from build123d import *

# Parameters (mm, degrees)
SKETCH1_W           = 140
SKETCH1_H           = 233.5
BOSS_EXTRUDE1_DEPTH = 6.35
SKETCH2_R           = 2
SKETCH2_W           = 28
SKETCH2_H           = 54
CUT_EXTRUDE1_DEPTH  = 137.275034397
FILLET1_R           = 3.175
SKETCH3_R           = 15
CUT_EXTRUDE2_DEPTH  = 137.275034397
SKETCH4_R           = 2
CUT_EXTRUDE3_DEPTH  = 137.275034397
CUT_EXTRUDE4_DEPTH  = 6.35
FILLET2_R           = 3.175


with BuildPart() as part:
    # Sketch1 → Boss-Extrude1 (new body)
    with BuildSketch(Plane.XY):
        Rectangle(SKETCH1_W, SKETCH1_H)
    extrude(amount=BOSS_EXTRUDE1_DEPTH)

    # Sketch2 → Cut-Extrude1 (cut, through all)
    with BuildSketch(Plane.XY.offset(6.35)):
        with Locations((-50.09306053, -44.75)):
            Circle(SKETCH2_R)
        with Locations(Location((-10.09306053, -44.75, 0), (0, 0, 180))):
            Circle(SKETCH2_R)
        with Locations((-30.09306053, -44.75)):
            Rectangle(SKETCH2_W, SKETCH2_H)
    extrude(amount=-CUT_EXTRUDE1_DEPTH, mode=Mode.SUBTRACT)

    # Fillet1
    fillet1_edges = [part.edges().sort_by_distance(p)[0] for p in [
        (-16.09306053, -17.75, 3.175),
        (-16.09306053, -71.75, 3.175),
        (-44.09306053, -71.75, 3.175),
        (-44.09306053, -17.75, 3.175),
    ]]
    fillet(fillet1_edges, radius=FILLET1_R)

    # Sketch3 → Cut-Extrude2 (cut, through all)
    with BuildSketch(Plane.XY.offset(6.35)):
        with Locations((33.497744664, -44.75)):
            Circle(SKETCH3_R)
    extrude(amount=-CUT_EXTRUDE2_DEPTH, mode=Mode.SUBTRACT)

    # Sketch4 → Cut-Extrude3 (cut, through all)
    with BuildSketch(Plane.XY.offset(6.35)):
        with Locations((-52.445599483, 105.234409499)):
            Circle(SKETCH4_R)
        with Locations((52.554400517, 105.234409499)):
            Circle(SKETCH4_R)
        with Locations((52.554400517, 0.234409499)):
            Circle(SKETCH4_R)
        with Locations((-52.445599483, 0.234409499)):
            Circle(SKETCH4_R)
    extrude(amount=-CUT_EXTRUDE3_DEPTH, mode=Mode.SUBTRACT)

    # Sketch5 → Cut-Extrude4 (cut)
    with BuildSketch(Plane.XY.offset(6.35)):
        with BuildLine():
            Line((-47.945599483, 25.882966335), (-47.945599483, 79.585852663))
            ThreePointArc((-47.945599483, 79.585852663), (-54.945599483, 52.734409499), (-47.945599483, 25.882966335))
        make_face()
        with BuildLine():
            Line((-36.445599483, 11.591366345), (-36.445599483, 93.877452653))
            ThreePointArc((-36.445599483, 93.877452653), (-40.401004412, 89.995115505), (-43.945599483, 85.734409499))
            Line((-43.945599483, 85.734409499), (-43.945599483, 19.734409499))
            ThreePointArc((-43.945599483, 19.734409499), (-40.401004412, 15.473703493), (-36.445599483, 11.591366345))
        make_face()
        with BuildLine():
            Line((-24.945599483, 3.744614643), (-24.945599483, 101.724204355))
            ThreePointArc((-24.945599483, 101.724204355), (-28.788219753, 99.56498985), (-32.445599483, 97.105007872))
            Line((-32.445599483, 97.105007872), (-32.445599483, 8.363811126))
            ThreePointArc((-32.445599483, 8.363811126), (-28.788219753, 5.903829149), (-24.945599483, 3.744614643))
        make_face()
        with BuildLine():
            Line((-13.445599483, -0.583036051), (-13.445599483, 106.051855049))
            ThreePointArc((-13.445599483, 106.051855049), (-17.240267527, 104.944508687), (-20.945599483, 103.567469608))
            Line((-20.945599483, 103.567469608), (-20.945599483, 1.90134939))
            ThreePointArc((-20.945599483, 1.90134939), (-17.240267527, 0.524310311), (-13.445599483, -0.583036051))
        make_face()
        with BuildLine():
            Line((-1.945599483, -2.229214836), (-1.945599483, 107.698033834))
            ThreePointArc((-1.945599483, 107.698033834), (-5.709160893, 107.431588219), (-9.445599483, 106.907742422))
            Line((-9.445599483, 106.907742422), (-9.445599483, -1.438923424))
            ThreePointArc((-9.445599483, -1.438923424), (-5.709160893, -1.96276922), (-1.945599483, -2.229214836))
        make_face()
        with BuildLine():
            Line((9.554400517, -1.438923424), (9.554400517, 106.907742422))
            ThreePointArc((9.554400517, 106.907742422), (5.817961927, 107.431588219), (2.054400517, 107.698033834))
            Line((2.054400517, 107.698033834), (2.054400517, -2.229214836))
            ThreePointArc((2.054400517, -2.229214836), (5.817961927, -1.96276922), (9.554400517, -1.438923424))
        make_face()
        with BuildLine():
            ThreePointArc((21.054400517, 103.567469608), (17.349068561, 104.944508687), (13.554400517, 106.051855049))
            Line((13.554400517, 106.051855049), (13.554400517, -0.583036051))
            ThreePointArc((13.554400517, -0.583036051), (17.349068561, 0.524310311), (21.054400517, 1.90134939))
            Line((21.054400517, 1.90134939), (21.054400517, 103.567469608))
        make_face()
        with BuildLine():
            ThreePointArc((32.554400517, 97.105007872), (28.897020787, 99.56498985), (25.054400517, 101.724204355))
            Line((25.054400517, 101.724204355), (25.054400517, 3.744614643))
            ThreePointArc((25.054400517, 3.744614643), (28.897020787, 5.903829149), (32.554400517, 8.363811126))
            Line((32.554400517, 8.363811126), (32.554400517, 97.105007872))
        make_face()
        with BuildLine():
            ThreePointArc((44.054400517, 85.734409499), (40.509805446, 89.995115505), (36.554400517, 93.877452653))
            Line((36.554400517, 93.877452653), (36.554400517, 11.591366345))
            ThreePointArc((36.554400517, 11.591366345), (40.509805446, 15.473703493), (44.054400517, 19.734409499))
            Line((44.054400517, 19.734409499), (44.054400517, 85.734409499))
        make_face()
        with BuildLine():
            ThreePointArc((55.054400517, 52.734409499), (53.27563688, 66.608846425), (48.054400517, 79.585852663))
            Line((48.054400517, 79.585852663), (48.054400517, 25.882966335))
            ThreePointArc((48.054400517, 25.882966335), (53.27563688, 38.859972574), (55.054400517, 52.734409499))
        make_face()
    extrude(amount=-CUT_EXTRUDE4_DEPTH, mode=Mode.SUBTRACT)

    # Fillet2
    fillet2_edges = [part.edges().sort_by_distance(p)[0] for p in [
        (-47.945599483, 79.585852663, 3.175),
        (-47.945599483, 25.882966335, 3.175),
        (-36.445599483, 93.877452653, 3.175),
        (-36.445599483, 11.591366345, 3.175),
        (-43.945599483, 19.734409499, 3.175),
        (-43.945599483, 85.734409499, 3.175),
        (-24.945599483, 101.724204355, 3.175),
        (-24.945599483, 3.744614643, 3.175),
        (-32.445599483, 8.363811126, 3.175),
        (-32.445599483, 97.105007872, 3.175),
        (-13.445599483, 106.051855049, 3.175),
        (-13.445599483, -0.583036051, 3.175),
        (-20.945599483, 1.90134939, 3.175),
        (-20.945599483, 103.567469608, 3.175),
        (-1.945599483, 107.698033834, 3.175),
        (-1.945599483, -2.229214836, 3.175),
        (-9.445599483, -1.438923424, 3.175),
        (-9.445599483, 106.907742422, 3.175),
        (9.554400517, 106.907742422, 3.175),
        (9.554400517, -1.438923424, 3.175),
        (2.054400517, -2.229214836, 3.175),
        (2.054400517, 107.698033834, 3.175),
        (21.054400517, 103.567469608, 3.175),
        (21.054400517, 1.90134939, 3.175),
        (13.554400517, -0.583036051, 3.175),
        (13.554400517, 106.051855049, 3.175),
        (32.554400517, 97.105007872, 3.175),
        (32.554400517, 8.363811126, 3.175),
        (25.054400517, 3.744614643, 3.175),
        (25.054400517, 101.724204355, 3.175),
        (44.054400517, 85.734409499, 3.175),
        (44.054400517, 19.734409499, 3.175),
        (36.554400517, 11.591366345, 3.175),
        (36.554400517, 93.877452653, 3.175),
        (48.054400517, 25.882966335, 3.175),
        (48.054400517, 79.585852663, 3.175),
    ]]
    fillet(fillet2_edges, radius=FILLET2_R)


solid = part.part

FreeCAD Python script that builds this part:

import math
import FreeCAD as App
import Part
import Sketcher


def edges_at(feature, points):
    """Names of the edges that pass closest to the given points."""
    edges = feature.Shape.Edges
    near = lambda p: min(range(len(edges)), key=lambda i: edges[i].distToShape(Part.Vertex(*p))[0])
    return sorted({f"Edge{near(p) + 1}" for p in points})


def add_polygon(sketch, points):
    """Adds a closed chain of lines whose ends are joined by coincident constraints."""
    first, n = sketch.GeometryCount, len(points)
    for a, b in zip(points, points[1:] + points[:1]):
        sketch.addGeometry(Part.LineSegment(App.Vector(*a, 0), App.Vector(*b, 0)), False)
    for i in range(n):
        sketch.addConstraint(Sketcher.Constraint("Coincident", first + i, 2, first + (i + 1) % n, 1))

doc = App.newDocument("Part")
body = doc.addObject("PartDesign::Body", "Body")

# Sketch on XY plane
sketch1 = body.newObject("Sketcher::SketchObject", "Sketch")
sketch1.AttachmentSupport = (doc.getObject("XY_Plane"), [""])
sketch1.MapMode = "FlatFace"
add_polygon(sketch1, [(-70, 117), (-70, -117), (70, -117), (70, 117)])  # lines 0-3
sketch1.addConstraint([
    Sketcher.Constraint("Vertical", 0),
    Sketcher.Constraint("Horizontal", 1),
    Sketcher.Constraint("Vertical", 2),
    Sketcher.Constraint("Horizontal", 3),
    Sketcher.Constraint("Symmetric", 0, 2, 2, 2, -1, 1),
    Sketcher.Constraint("DistanceX", 1, 1, 1, 2, 140.0),
    Sketcher.Constraint("DistanceY", 0, 2, 0, 1, 233.5),
])
pad1 = body.newObject("PartDesign::Pad", "Pad")
pad1.Profile = sketch1
pad1.Length = 6.35

# Sketch on XY plane
sketch2 = body.newObject("Sketcher::SketchObject", "Sketch001")
sketch2.AttachmentSupport = (doc.getObject("XY_Plane"), [""])
sketch2.MapMode = "FlatFace"
sketch2.AttachmentOffset = App.Placement(App.Vector(0, 0, 6.35), App.Rotation())
sketch2.addGeometry(Part.Circle(App.Vector(-50.1, -44.8, 0), App.Vector(0, 0, 1), 2), False)  # 0
sketch2.addGeometry(Part.Circle(App.Vector(-10.1, -44.8, 0), App.Vector(0, 0, 1), 2), False)  # 1
add_polygon(sketch2, [(-44.1, -17.8), (-44.1, -71.8), (-16.1, -71.8), (-16.1, -17.8)])  # lines 2-5
sketch2.addConstraint([
    Sketcher.Constraint("Vertical", 2),
    Sketcher.Constraint("Horizontal", 3),
    Sketcher.Constraint("Vertical", 4),
    Sketcher.Constraint("Horizontal", 5),
    Sketcher.Constraint("Equal", 0, 1),
    Sketcher.Constraint("Horizontal", 0, 3, 1, 3),
    Sketcher.Constraint("Diameter", 0, 4.0),
    Sketcher.Constraint("DistanceX", 3, 1, 3, 2, 28.0),
    Sketcher.Constraint("DistanceY", 2, 2, 2, 1, 54.0),
    Sketcher.Constraint("DistanceX", 0, 3, 1, 3, 40.0),
    Sketcher.Constraint("DistanceX", 0, 3, 2, 2, 6.0),
    Sketcher.Constraint("DistanceY", 2, 2, 0, 3, 27.0),
    Sketcher.Constraint("DistanceY", 0, 3, -1, 1, 44.75),
    Sketcher.Constraint("DistanceX", 0, 3, -1, 1, 50.093061),
])
pocket1 = body.newObject("PartDesign::Pocket", "Pocket")
pocket1.Profile = sketch2
pocket1.Type = "ThroughAll"
doc.recompute()

fillet = body.newObject("PartDesign::Fillet", "Fillet")
fillet.Base = (pocket1, edges_at(pocket1, [
    (-16.093, -17.75, 3.175),
    (-16.093, -71.75, 3.175),
    (-44.093, -71.75, 3.175),
    (-44.093, -17.75, 3.175),
]))
fillet.Radius = 3.175

# Sketch on XY plane
sketch3 = body.newObject("Sketcher::SketchObject", "Sketch002")
sketch3.AttachmentSupport = (doc.getObject("XY_Plane"), [""])
sketch3.MapMode = "FlatFace"
sketch3.AttachmentOffset = App.Placement(App.Vector(0, 0, 6.35), App.Rotation())
sketch3.addGeometry(Part.Circle(App.Vector(33, -45, 0), App.Vector(0, 0, 1), 15), False)
sketch3.addConstraint([
    Sketcher.Constraint("Diameter", 0, 30.0),
    Sketcher.Constraint("DistanceY", 0, 3, -1, 1, 44.75),
    Sketcher.Constraint("DistanceX", -1, 1, 0, 3, 33.497745),
])
pocket2 = body.newObject("PartDesign::Pocket", "Pocket001")
pocket2.Profile = sketch3
pocket2.Type = "ThroughAll"

# Sketch on XY plane
sketch4 = body.newObject("Sketcher::SketchObject", "Sketch003")
sketch4.AttachmentSupport = (doc.getObject("XY_Plane"), [""])
sketch4.MapMode = "FlatFace"
sketch4.AttachmentOffset = App.Placement(App.Vector(0, 0, 6.35), App.Rotation())
sketch4.addGeometry([
    Part.Circle(App.Vector(-52.4, 105.2, 0), App.Vector(0, 0, 1), 2),
    Part.Circle(App.Vector(52.6, 105.2, 0), App.Vector(0, 0, 1), 2),
    Part.Circle(App.Vector(52.6, 0.2, 0), App.Vector(0, 0, 1), 2),
    Part.Circle(App.Vector(-52.4, 0.2, 0), App.Vector(0, 0, 1), 2),
], False)
sketch4.addConstraint([
    Sketcher.Constraint("Equal", 0, 1),
    Sketcher.Constraint("Equal", 1, 2),
    Sketcher.Constraint("Equal", 2, 3),
    Sketcher.Constraint("Horizontal", 0, 3, 1, 3),
    Sketcher.Constraint("Horizontal", 2, 3, 3, 3),
    Sketcher.Constraint("Vertical", 1, 3, 2, 3),
    Sketcher.Constraint("Vertical", 0, 3, 3, 3),
    Sketcher.Constraint("Diameter", 0, 4.0),
    Sketcher.Constraint("DistanceX", 0, 3, 1, 3, 105.0),
    Sketcher.Constraint("DistanceY", 2, 3, 1, 3, 105.0),
    Sketcher.Constraint("DistanceX", 0, 3, -1, 1, 52.445599),
    Sketcher.Constraint("DistanceY", -1, 1, 0, 3, 105.234409),
])
pocket3 = body.newObject("PartDesign::Pocket", "Pocket002")
pocket3.Profile = sketch4
pocket3.Type = "ThroughAll"

# Sketch on XY plane
sketch5 = body.newObject("Sketcher::SketchObject", "Sketch004")
sketch5.AttachmentSupport = (doc.getObject("XY_Plane"), [""])
sketch5.MapMode = "FlatFace"
sketch5.AttachmentOffset = App.Placement(App.Vector(0, 0, 6.35), App.Rotation())
sketch5.addGeometry([
    Part.LineSegment(App.Vector(-48, 26, 0), App.Vector(-48, 80, 0)),  # 0
    Part.ArcOfCircle(Part.Circle(App.Vector(0, 53, 0), App.Vector(0, 0, 1), 55), math.radians(151), math.radians(209)),  # 1
    Part.LineSegment(App.Vector(-36, 12, 0), App.Vector(-36, 94, 0)),  # 2
    Part.ArcOfCircle(Part.Circle(App.Vector(0, 53, 0), App.Vector(0, 0, 1), 55), math.radians(131.58), math.radians(143.13)),  # 3
    Part.LineSegment(App.Vector(-44, 86, 0), App.Vector(-44, 20, 0)),  # 4
    Part.ArcOfCircle(Part.Circle(App.Vector(0, 53, 0), App.Vector(0, 0, 1), 55), math.radians(-143.13), math.radians(-131.58)),  # 5
    Part.LineSegment(App.Vector(-25, 4, 0), App.Vector(-25, 102, 0)),  # 6
    Part.ArcOfCircle(Part.Circle(App.Vector(0, 53, 0), App.Vector(0, 0, 1), 55), math.radians(117.04), math.radians(126.22)),  # 7
    Part.LineSegment(App.Vector(-32, 97, 0), App.Vector(-32, 8, 0)),  # 8
    Part.ArcOfCircle(Part.Circle(App.Vector(0, 53, 0), App.Vector(0, 0, 1), 55), math.radians(-126.22), math.radians(-117.04)),  # 9
    Part.LineSegment(App.Vector(-13, -1, 0), App.Vector(-13, 106, 0)),  # 10
    Part.ArcOfCircle(Part.Circle(App.Vector(0, 53, 0), App.Vector(0, 0, 1), 55), math.radians(104.21), math.radians(112.45)),  # 11
    Part.LineSegment(App.Vector(-21, 104, 0), App.Vector(-21, 2, 0)),  # 12
    Part.ArcOfCircle(Part.Circle(App.Vector(0, 53, 0), App.Vector(0, 0, 1), 55), math.radians(-112.45), math.radians(-104.21)),  # 13
    Part.LineSegment(App.Vector(-2, -2, 0), App.Vector(-2, 108, 0)),  # 14
    Part.ArcOfCircle(Part.Circle(App.Vector(0, 53, 0), App.Vector(0, 0, 1), 55), math.radians(92.08), math.radians(99.95)),  # 15
    Part.LineSegment(App.Vector(-9, 107, 0), App.Vector(-9, -1, 0)),  # 16
    Part.ArcOfCircle(Part.Circle(App.Vector(0, 53, 0), App.Vector(0, 0, 1), 55), math.radians(-99.95), math.radians(-92.08)),  # 17
    Part.LineSegment(App.Vector(10, -1, 0), App.Vector(10, 107, 0)),  # 18
    Part.ArcOfCircle(Part.Circle(App.Vector(0, 53, 0), App.Vector(0, 0, 1), 55), math.radians(80.05), math.radians(87.92)),  # 19
    Part.LineSegment(App.Vector(2, 108, 0), App.Vector(2, -2, 0)),  # 20
    Part.ArcOfCircle(Part.Circle(App.Vector(0, 53, 0), App.Vector(0, 0, 1), 55), math.radians(-87.92), math.radians(-80.05)),  # 21
    Part.ArcOfCircle(Part.Circle(App.Vector(0, 53, 0), App.Vector(0, 0, 1), 55), math.radians(67.55), math.radians(75.79)),  # 22
    Part.LineSegment(App.Vector(14, 106, 0), App.Vector(14, -1, 0)),  # 23
    Part.ArcOfCircle(Part.Circle(App.Vector(0, 53, 0), App.Vector(0, 0, 1), 55), math.radians(-75.79), math.radians(-67.55)),  # 24
    Part.LineSegment(App.Vector(21, 2, 0), App.Vector(21, 104, 0)),  # 25
    Part.ArcOfCircle(Part.Circle(App.Vector(0, 53, 0), App.Vector(0, 0, 1), 55), math.radians(53.78), math.radians(62.96)),  # 26
    Part.LineSegment(App.Vector(25, 102, 0), App.Vector(25, 4, 0)),  # 27
    Part.ArcOfCircle(Part.Circle(App.Vector(0, 53, 0), App.Vector(0, 0, 1), 55), math.radians(-62.96), math.radians(-53.78)),  # 28
    Part.LineSegment(App.Vector(33, 8, 0), App.Vector(33, 97, 0)),  # 29
    Part.ArcOfCircle(Part.Circle(App.Vector(0, 53, 0), App.Vector(0, 0, 1), 55), math.radians(36.87), math.radians(48.42)),  # 30
    Part.LineSegment(App.Vector(37, 94, 0), App.Vector(37, 12, 0)),  # 31
    Part.ArcOfCircle(Part.Circle(App.Vector(0, 53, 0), App.Vector(0, 0, 1), 55), math.radians(-48.42), math.radians(-36.87)),  # 32
    Part.LineSegment(App.Vector(44, 20, 0), App.Vector(44, 86, 0)),  # 33
    Part.ArcOfCircle(Part.Circle(App.Vector(0, 53, 0), App.Vector(0, 0, 1), 55), math.radians(0), math.radians(29)),  # 34
    Part.LineSegment(App.Vector(48, 80, 0), App.Vector(48, 26, 0)),  # 35
    Part.ArcOfCircle(Part.Circle(App.Vector(0, 53, 0), App.Vector(0, 0, 1), 55), math.radians(-29), math.radians(0)),  # 36
], False)
sketch5.addConstraint([
    Sketcher.Constraint("Coincident", 0, 1, 1, 2),
    Sketcher.Constraint("Coincident", 1, 1, 0, 2),
    Sketcher.Constraint("Coincident", 2, 2, 3, 1),
    Sketcher.Constraint("Coincident", 3, 2, 4, 1),
    Sketcher.Constraint("Coincident", 4, 2, 5, 1),
    Sketcher.Constraint("Coincident", 5, 2, 2, 1),
    Sketcher.Constraint("Coincident", 6, 2, 7, 1),
    Sketcher.Constraint("Coincident", 7, 2, 8, 1),
    Sketcher.Constraint("Coincident", 8, 2, 9, 1),
    Sketcher.Constraint("Coincident", 9, 2, 6, 1),
    Sketcher.Constraint("Coincident", 10, 2, 11, 1),
    Sketcher.Constraint("Coincident", 11, 2, 12, 1),
    Sketcher.Constraint("Coincident", 12, 2, 13, 1),
    Sketcher.Constraint("Coincident", 13, 2, 10, 1),
    Sketcher.Constraint("Coincident", 14, 2, 15, 1),
    Sketcher.Constraint("Coincident", 15, 2, 16, 1),
    Sketcher.Constraint("Coincident", 16, 2, 17, 1),
    Sketcher.Constraint("Coincident", 17, 2, 14, 1),
    Sketcher.Constraint("Coincident", 18, 2, 19, 1),
    Sketcher.Constraint("Coincident", 19, 2, 20, 1),
    Sketcher.Constraint("Coincident", 20, 2, 21, 1),
    Sketcher.Constraint("Coincident", 21, 2, 18, 1),
    Sketcher.Constraint("Coincident", 22, 2, 23, 1),
    Sketcher.Constraint("Coincident", 23, 2, 24, 1),
    Sketcher.Constraint("Coincident", 24, 2, 25, 1),
    Sketcher.Constraint("Coincident", 25, 2, 22, 1),
    Sketcher.Constraint("Coincident", 26, 2, 27, 1),
    Sketcher.Constraint("Coincident", 27, 2, 28, 1),
    Sketcher.Constraint("Coincident", 28, 2, 29, 1),
    Sketcher.Constraint("Coincident", 29, 2, 26, 1),
    Sketcher.Constraint("Coincident", 30, 2, 31, 1),
    Sketcher.Constraint("Coincident", 31, 2, 32, 1),
    Sketcher.Constraint("Coincident", 32, 2, 33, 1),
    Sketcher.Constraint("Coincident", 33, 2, 30, 1),
    Sketcher.Constraint("Coincident", 34, 2, 35, 1),
    Sketcher.Constraint("Coincident", 35, 2, 36, 1),
    Sketcher.Constraint("Tangent", 36, 2, 34, 1),
    Sketcher.Constraint("Vertical", 0),
    Sketcher.Constraint("Vertical", 2),
    Sketcher.Constraint("Vertical", 4),
    Sketcher.Constraint("Vertical", 6),
    Sketcher.Constraint("Vertical", 8),
    Sketcher.Constraint("Vertical", 10),
    Sketcher.Constraint("Vertical", 12),
    Sketcher.Constraint("Vertical", 14),
    Sketcher.Constraint("Vertical", 16),
    Sketcher.Constraint("Vertical", 18),
    Sketcher.Constraint("Vertical", 20),
    Sketcher.Constraint("Vertical", 23),
    Sketcher.Constraint("Vertical", 25),
    Sketcher.Constraint("Vertical", 27),
    Sketcher.Constraint("Vertical", 29),
    Sketcher.Constraint("Vertical", 31),
    Sketcher.Constraint("Vertical", 33),
    Sketcher.Constraint("Vertical", 35),
    Sketcher.Constraint("Coincident", 3, 3, 1, 3),
    Sketcher.Constraint("Coincident", 5, 3, 1, 3),
    Sketcher.Constraint("Coincident", 7, 3, 1, 3),
    Sketcher.Constraint("Coincident", 9, 3, 1, 3),
    Sketcher.Constraint("Coincident", 11, 3, 1, 3),
    Sketcher.Constraint("Coincident", 13, 3, 1, 3),
    Sketcher.Constraint("Coincident", 15, 3, 1, 3),
    Sketcher.Constraint("Coincident", 17, 3, 1, 3),
    Sketcher.Constraint("Coincident", 19, 3, 1, 3),
    Sketcher.Constraint("Coincident", 21, 3, 1, 3),
    Sketcher.Constraint("Coincident", 22, 3, 1, 3),
    Sketcher.Constraint("Coincident", 24, 3, 1, 3),
    Sketcher.Constraint("Coincident", 26, 3, 1, 3),
    Sketcher.Constraint("Coincident", 28, 3, 1, 3),
    Sketcher.Constraint("Coincident", 30, 3, 1, 3),
    Sketcher.Constraint("Coincident", 32, 3, 1, 3),
    Sketcher.Constraint("Coincident", 34, 3, 1, 3),
    Sketcher.Constraint("Equal", 1, 3),
    Sketcher.Constraint("Equal", 3, 5),
    Sketcher.Constraint("Equal", 5, 7),
    Sketcher.Constraint("Equal", 7, 9),
    Sketcher.Constraint("Equal", 9, 11),
    Sketcher.Constraint("Equal", 11, 13),
    Sketcher.Constraint("Equal", 13, 15),
    Sketcher.Constraint("Equal", 15, 17),
    Sketcher.Constraint("Equal", 17, 19),
    Sketcher.Constraint("Equal", 19, 21),
    Sketcher.Constraint("Equal", 21, 22),
    Sketcher.Constraint("Equal", 22, 24),
    Sketcher.Constraint("Equal", 24, 26),
    Sketcher.Constraint("Equal", 26, 28),
    Sketcher.Constraint("Equal", 28, 30),
    Sketcher.Constraint("Equal", 30, 32),
    Sketcher.Constraint("Equal", 32, 34),
    Sketcher.Constraint("Equal", 34, 36),
    Sketcher.Constraint("Horizontal", 15, 2, 18, 2),
    Sketcher.Constraint("Horizontal", 14, 2, 19, 2),
    Sketcher.Constraint("Horizontal", 10, 2, 22, 2),
    Sketcher.Constraint("Horizontal", 12, 2, 24, 2),
    Sketcher.Constraint("Horizontal", 6, 2, 26, 2),
    Sketcher.Constraint("Horizontal", 8, 2, 28, 2),
    Sketcher.Constraint("Horizontal", 2, 2, 30, 2),
    Sketcher.Constraint("Horizontal", 4, 2, 32, 2),
    Sketcher.Constraint("Horizontal", 1, 1, 34, 2),
    Sketcher.Constraint("Horizontal", 34, 3, 36, 2),
    Sketcher.Constraint("Radius", 1, 55.0),
    Sketcher.Constraint("DistanceY", 4, 2, 4, 1, 66.0),
    Sketcher.Constraint("DistanceX", 0, 1, 22, 3, 48.0),
    Sketcher.Constraint("DistanceX", 3, 2, 6, 2, 19.0),
    Sketcher.Constraint("DistanceX", 2, 2, 7, 2, 4.0),
    Sketcher.Constraint("DistanceX", 7, 2, 10, 2, 19.0),
    Sketcher.Constraint("DistanceX", 6, 2, 11, 2, 4.0),
    Sketcher.Constraint("DistanceX", 11, 2, 14, 2, 19.0),
    Sketcher.Constraint("DistanceX", 10, 2, 15, 2, 4.0),
    Sketcher.Constraint("DistanceX", 15, 2, 18, 2, 19.0),
    Sketcher.Constraint("DistanceX", -1, 1, 1, 3, 0.054401),
    Sketcher.Constraint("DistanceY", -1, 1, 1, 3, 52.734409),
])
pocket4 = body.newObject("PartDesign::Pocket", "Pocket003")
pocket4.Profile = sketch5
pocket4.Length = 6.35
doc.recompute()

fillet2 = body.newObject("PartDesign::Fillet", "Fillet001")
fillet2.Base = (pocket4, edges_at(pocket4, [
    (-47.946, 79.586, 3.175),
    (-47.946, 25.883, 3.175),
    (-36.446, 93.877, 3.175),
    (-36.446, 11.591, 3.175),
    (-43.946, 19.734, 3.175),
    (-43.946, 85.734, 3.175),
    (-24.946, 101.724, 3.175),
    (-24.946, 3.745, 3.175),
    (-32.446, 8.364, 3.175),
    (-32.446, 97.105, 3.175),
    (-13.446, 106.052, 3.175),
    (-13.446, -0.583, 3.175),
    (-20.946, 1.901, 3.175),
    (-20.946, 103.567, 3.175),
    (-1.946, 107.698, 3.175),
    (-1.946, -2.229, 3.175),
    (-9.446, -1.439, 3.175),
    (-9.446, 106.908, 3.175),
    (9.554, 106.908, 3.175),
    (9.554, -1.439, 3.175),
    (2.054, -2.229, 3.175),
    (2.054, 107.698, 3.175),
    (21.054, 103.567, 3.175),
    (21.054, 1.901, 3.175),
    (13.554, -0.583, 3.175),
    (13.554, 106.052, 3.175),
    (32.554, 97.105, 3.175),
    (32.554, 8.364, 3.175),
    (25.054, 3.745, 3.175),
    (25.054, 101.724, 3.175),
    (44.054, 85.734, 3.175),
    (44.054, 19.734, 3.175),
    (36.554, 11.591, 3.175),
    (36.554, 93.877, 3.175),
    (48.054, 25.883, 3.175),
    (48.054, 79.586, 3.175),
]))
fillet2.Radius = 3.175

doc.recompute()
